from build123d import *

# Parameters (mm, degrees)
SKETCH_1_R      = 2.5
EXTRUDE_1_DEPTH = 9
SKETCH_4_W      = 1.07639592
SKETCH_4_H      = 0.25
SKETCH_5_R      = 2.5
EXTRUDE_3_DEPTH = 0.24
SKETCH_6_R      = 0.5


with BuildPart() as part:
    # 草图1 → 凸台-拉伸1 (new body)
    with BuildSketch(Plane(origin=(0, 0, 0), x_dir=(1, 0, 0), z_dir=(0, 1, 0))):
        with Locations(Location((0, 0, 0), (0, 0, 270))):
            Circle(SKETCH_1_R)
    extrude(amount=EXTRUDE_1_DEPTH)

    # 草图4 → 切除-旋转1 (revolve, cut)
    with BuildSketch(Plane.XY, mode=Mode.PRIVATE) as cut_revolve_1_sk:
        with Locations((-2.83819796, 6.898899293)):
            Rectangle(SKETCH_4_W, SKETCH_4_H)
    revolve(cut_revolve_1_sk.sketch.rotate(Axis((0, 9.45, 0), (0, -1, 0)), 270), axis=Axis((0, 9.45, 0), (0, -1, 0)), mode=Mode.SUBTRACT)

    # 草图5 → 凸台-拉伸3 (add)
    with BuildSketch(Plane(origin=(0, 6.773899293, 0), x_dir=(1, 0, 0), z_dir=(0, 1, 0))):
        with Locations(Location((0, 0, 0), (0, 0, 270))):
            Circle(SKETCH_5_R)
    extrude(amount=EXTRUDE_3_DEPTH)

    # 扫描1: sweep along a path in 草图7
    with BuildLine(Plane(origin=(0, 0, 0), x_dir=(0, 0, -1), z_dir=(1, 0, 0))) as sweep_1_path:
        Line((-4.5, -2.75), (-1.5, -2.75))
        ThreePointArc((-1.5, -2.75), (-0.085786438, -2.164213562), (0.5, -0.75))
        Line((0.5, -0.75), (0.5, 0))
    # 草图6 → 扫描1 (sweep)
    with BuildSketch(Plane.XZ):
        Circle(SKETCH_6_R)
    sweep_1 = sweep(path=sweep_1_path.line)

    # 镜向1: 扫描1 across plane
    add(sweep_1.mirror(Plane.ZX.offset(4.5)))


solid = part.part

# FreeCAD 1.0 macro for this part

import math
import FreeCAD as App
import Part
import Sketcher

V = App.Vector

doc = App.newDocument("Part")
body = doc.addObject("PartDesign::Body", "Body")

# Sketch on XZ plane
sketch1 = body.newObject("Sketcher::SketchObject", "Sketch")
sketch1.AttachmentSupport = (doc.getObject("XZ_Plane"), [""])
sketch1.MapMode = "FlatFace"
sketch1.addGeometry(Part.Circle(V(0, 0, 0), V(0, 0, 1), 2.5), False)
sketch1.addConstraint(Sketcher.Constraint("Coincident", 0, 3, -1, 1))
sketch1.addConstraint(Sketcher.Constraint("Diameter", 0, 5.0))
pad1 = body.newObject("PartDesign::Pad", "Pad")
pad1.Profile = sketch1
pad1.Length = 9
pad1.Reversed = True

# Sketch on XY plane
sketch2 = body.newObject("Sketcher::SketchObject", "Sketch001")
sketch2.AttachmentSupport = (doc.getObject("XY_Plane"), [""])
sketch2.MapMode = "FlatFace"
sketch2.addGeometry(Part.LineSegment(V(-3.38, 7.02, 0), V(-3.38, 6.77, 0)), False)
sketch2.addGeometry(Part.LineSegment(V(-3.38, 6.77, 0), V(-2.3, 6.77, 0)), False)
sketch2.addGeometry(Part.LineSegment(V(-2.3, 6.77, 0), V(-2.3, 7.02, 0)), False)
sketch2.addGeometry(Part.LineSegment(V(-2.3, 7.02, 0), V(-3.38, 7.02, 0)), False)
sketch2.addConstraint(Sketcher.Constraint("Coincident", 0, 2, 1, 1))
sketch2.addConstraint(Sketcher.Constraint("Coincident", 1, 2, 2, 1))
sketch2.addConstraint(Sketcher.Constraint("Coincident", 2, 2, 3, 1))
sketch2.addConstraint(Sketcher.Constraint("Coincident", 3, 2, 0, 1))
sketch2.addConstraint(Sketcher.Constraint("Vertical", 0))
sketch2.addConstraint(Sketcher.Constraint("Horizontal", 1))
sketch2.addConstraint(Sketcher.Constraint("Vertical", 2))
sketch2.addConstraint(Sketcher.Constraint("Horizontal", 3))
sketch2.addConstraint(Sketcher.Constraint("DistanceY", 0, 2, 0, 1, 0.25))
sketch2.addConstraint(Sketcher.Constraint("DistanceX", 1, 2, -1, 1, 2.3))
sketch2.addConstraint(Sketcher.Constraint("DistanceY", -1, 1, 0, 2, 6.773899))
sketch2.addConstraint(Sketcher.Constraint("DistanceX", 1, 1, 1, 2, 1.076396))
groove = body.newObject("PartDesign::Groove", "Groove")
groove.Profile = sketch2
groove.ReferenceAxis = (sketch2, ["V_Axis"])
groove.Angle = 360

# Sketch on XZ plane
sketch3 = body.newObject("Sketcher::SketchObject", "Sketch002")
sketch3.AttachmentSupport = (doc.getObject("XZ_Plane"), [""])
sketch3.MapMode = "FlatFace"
sketch3.AttachmentOffset = App.Placement(V(0, 0, -6.773899), App.Rotation())
sketch3.addGeometry(Part.Circle(V(0, 0, 0), V(0, 0, 1), 2.5), False)
sketch3.addConstraint(Sketcher.Constraint("Coincident", 0, 3, -1, 1))
sketch3.addConstraint(Sketcher.Constraint("Diameter", 0, 5.0))
pad2 = body.newObject("PartDesign::Pad", "Pad001")
pad2.Profile = sketch3
pad2.Length = 0.24
pad2.Reversed = True

# Sketch on XZ plane
sketch4 = body.newObject("Sketcher::SketchObject", "Sketch003")
sketch4.AttachmentSupport = (doc.getObject("XZ_Plane"), [""])
sketch4.MapMode = "FlatFace"
sketch4.addGeometry(Part.Circle(V(0, 0, 0), V(0, 0, 1), 0.5), False)
sketch4.addConstraint(Sketcher.Constraint("Coincident", 0, 3, -1, 1))
sketch4.addConstraint(Sketcher.Constraint("Diameter", 0, 1.0))

# Sketch on YZ plane
sketch5 = body.newObject("Sketcher::SketchObject", "Sketch004")
sketch5.AttachmentSupport = (doc.getObject("YZ_Plane"), [""])
sketch5.MapMode = "FlatFace"
sketch5.addGeometry(Part.LineSegment(V(-2.8, 4.5, 0), V(-2.8, 1.5, 0)), False)
sketch5.addGeometry(Part.ArcOfCircle(Part.Circle(V(-0.7, 1.5, 0), V(0, 0, 1), 2), math.radians(-180), math.radians(-90)), False)
sketch5.addGeometry(Part.LineSegment(V(-0.8, -0.5, 0), V(0, -0.5, 0)), False)
sketch5.addConstraint(Sketcher.Constraint("Tangent", 0, 2, 1, 1))
sketch5.addConstraint(Sketcher.Constraint("Tangent", 1, 2, 2, 1))
sketch5.addConstraint(Sketcher.Constraint("Vertical", 0))
sketch5.addConstraint(Sketcher.Constraint("Horizontal", 2))
sketch5.addConstraint(Sketcher.Constraint("PointOnObject", 2, 2, -2))
sketch5.addConstraint(Sketcher.Constraint("Radius", 1, 2.0))
sketch5.addConstraint(Sketcher.Constraint("DistanceY", 0, 2, 0, 1, 3.0))
sketch5.addConstraint(Sketcher.Constraint("DistanceX", 2, 1, 2, 2, 0.75))
sketch5.addConstraint(Sketcher.Constraint("DistanceY", -1, 1, 1, 3, 1.5))
doc.recompute()

additivepipe = body.newObject("PartDesign::AdditivePipe", "AdditivePipe")
additivepipe.Profile = sketch4
additivepipe.Spine = (sketch5, ["Edge1", "Edge2", "Edge3"])
doc.recompute()

datumplane = body.newObject("PartDesign::Plane", "DatumPlane")
datumplane.AttachmentSupport = (doc.getObject("XZ_Plane"), [""])
datumplane.MapMode = "FlatFace"
datumplane.AttachmentOffset = App.Placement(V(0, 0, -4.5), App.Rotation())
mirrored = body.newObject("PartDesign::Mirrored", "Mirrored")
mirrored.Originals = [additivepipe]
mirrored.MirrorPlane = (datumplane, [""])
body.Tip = mirrored

doc.recompute()
